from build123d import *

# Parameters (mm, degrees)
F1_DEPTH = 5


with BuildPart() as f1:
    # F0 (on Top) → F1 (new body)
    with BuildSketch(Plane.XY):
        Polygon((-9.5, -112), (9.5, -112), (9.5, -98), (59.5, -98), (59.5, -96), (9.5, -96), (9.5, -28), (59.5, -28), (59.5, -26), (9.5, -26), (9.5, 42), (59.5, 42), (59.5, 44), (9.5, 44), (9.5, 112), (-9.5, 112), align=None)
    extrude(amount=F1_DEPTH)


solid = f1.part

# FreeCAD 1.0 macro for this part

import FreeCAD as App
import Part
import Sketcher
Q = App.Units.Quantity

doc = App.newDocument("Part")
params = doc.addObject("Spreadsheet::Sheet", "Params")
for row, (alias, value) in enumerate([
    ("sketch1_width", "19 mm"),
    ("sketch1_width2", "50 mm"),
    ("sketch1_height", "14 mm"),
    ("sketch1_height2", "2 mm"),
    ("sketch1_height3", "68 mm"),
    ("pad1_length", "5 mm"),
], start=1):
    params.set(f"A{row}", alias)
    params.set(f"B{row}", "=" + value)
    params.setAlias(f"B{row}", alias)

body = doc.addObject("PartDesign::Body", "Body")

# Sketch on XY plane
sketch1 = body.newObject("Sketcher::SketchObject", "Sketch")
sketch1.AttachmentSupport = (doc.getObject("XY_Plane"), [""])
sketch1.MapMode = "FlatFace"
sketch1.addGeometry(Part.LineSegment(App.Vector(-9.5, -112, 0), App.Vector(9.5, -112, 0)), False)
sketch1.addGeometry(Part.LineSegment(App.Vector(9.5, -112, 0), App.Vector(9.5, -98, 0)), False)
sketch1.addGeometry(Part.LineSegment(App.Vector(9.5, -98, 0), App.Vector(59.5, -98, 0)), False)
sketch1.addGeometry(Part.LineSegment(App.Vector(59.5, -98, 0), App.Vector(59.5, -96, 0)), False)
sketch1.addGeometry(Part.LineSegment(App.Vector(59.5, -96, 0), App.Vector(9.5, -96, 0)), False)
sketch1.addGeometry(Part.LineSegment(App.Vector(9.5, -96, 0), App.Vector(9.5, -28, 0)), False)
sketch1.addGeometry(Part.LineSegment(App.Vector(9.5, -28, 0), App.Vector(59.5, -28, 0)), False)
sketch1.addGeometry(Part.LineSegment(App.Vector(59.5, -28, 0), App.Vector(59.5, -26, 0)), False)
sketch1.addGeometry(Part.LineSegment(App.Vector(59.5, -26, 0), App.Vector(9.5, -26, 0)), False)
sketch1.addGeometry(Part.LineSegment(App.Vector(9.5, -26, 0), App.Vector(9.5, 42, 0)), False)
sketch1.addGeometry(Part.LineSegment(App.Vector(9.5, 42, 0), App.Vector(59.5, 42, 0)), False)
sketch1.addGeometry(Part.LineSegment(App.Vector(59.5, 42, 0), App.Vector(59.5, 44, 0)), False)
sketch1.addGeometry(Part.LineSegment(App.Vector(59.5, 44, 0), App.Vector(9.5, 44, 0)), False)
sketch1.addGeometry(Part.LineSegment(App.Vector(9.5, 44, 0), App.Vector(9.5, 112, 0)), False)
sketch1.addGeometry(Part.LineSegment(App.Vector(9.5, 112, 0), App.Vector(-9.5, 112, 0)), False)
sketch1.addGeometry(Part.LineSegment(App.Vector(-9.5, 112, 0), App.Vector(-9.5, -112, 0)), False)
sketch1.addConstraint(Sketcher.Constraint("Coincident", 0, 2, 1, 1))
sketch1.addConstraint(Sketcher.Constraint("Coincident", 1, 2, 2, 1))
sketch1.addConstraint(Sketcher.Constraint("Coincident", 2, 2, 3, 1))
sketch1.addConstraint(Sketcher.Constraint("Coincident", 3, 2, 4, 1))
sketch1.addConstraint(Sketcher.Constraint("Coincident", 4, 2, 5, 1))
sketch1.addConstraint(Sketcher.Constraint("Coincident", 5, 2, 6, 1))
sketch1.addConstraint(Sketcher.Constraint("Coincident", 6, 2, 7, 1))
sketch1.addConstraint(Sketcher.Constraint("Coincident", 7, 2, 8, 1))
sketch1.addConstraint(Sketcher.Constraint("Coincident", 8, 2, 9, 1))
sketch1.addConstraint(Sketcher.Constraint("Coincident", 9, 2, 10, 1))
sketch1.addConstraint(Sketcher.Constraint("Coincident", 10, 2, 11, 1))
sketch1.addConstraint(Sketcher.Constraint("Coincident", 11, 2, 12, 1))
sketch1.addConstraint(Sketcher.Constraint("Coincident", 12, 2, 13, 1))
sketch1.addConstraint(Sketcher.Constraint("Coincident", 13, 2, 14, 1))
sketch1.addConstraint(Sketcher.Constraint("Coincident", 14, 2, 15, 1))
sketch1.addConstraint(Sketcher.Constraint("Coincident", 15, 2, 0, 1))
sketch1.addConstraint(Sketcher.Constraint("Horizontal", 0))
sketch1.addConstraint(Sketcher.Constraint("Vertical", 1))
sketch1.addConstraint(Sketcher.Constraint("Horizontal", 2))
sketch1.addConstraint(Sketcher.Constraint("Vertical", 3))
sketch1.addConstraint(Sketcher.Constraint("Horizontal", 4))
sketch1.addConstraint(Sketcher.Constraint("Vertical", 5))
sketch1.addConstraint(Sketcher.Constraint("Horizontal", 6))
sketch1.addConstraint(Sketcher.Constraint("Vertical", 7))
sketch1.addConstraint(Sketcher.Constraint("Horizontal", 8))
sketch1.addConstraint(Sketcher.Constraint("Vertical", 9))
sketch1.addConstraint(Sketcher.Constraint("Horizontal", 10))
sketch1.addConstraint(Sketcher.Constraint("Vertical", 11))
sketch1.addConstraint(Sketcher.Constraint("Horizontal", 12))
sketch1.addConstraint(Sketcher.Constraint("Vertical", 13))
sketch1.addConstraint(Sketcher.Constraint("Horizontal", 14))
sketch1.addConstraint(Sketcher.Constraint("Vertical", 15))
sketch1.addConstraint(Sketcher.Constraint("Symmetric", 0, 2, 14, 2, -1, 1))
sketch1.addConstraint(Sketcher.Constraint("Vertical", 1, 2, 4, 2))
sketch1.addConstraint(Sketcher.Constraint("Vertical", 3, 2, 6, 2))
sketch1.addConstraint(Sketcher.Constraint("Vertical", 5, 2, 8, 2))
sketch1.addConstraint(Sketcher.Constraint("Vertical", 7, 2, 10, 2))
sketch1.addConstraint(Sketcher.Constraint("Vertical", 9, 2, 12, 2))
sketch1.addConstraint(Sketcher.Constraint("Equal", 3, 7))
sketch1.addConstraint(Sketcher.Constraint("Equal", 5, 9))
sketch1.addConstraint(Sketcher.Constraint("Equal", 7, 11))
sketch1.addConstraint(Sketcher.Constraint("Equal", 9, 13))
sketch1.addConstraint(Sketcher.Constraint("DistanceX", 0, 1, 0, 2, Q("19 mm")))
sketch1.addConstraint(Sketcher.Constraint("DistanceX", 2, 1, 2, 2, Q("50 mm")))
sketch1.addConstraint(Sketcher.Constraint("DistanceY", 1, 1, 1, 2, Q("14 mm")))
sketch1.addConstraint(Sketcher.Constraint("DistanceY", 3, 1, 3, 2, Q("2 mm")))
sketch1.addConstraint(Sketcher.Constraint("DistanceY", 5, 1, 5, 2, Q("68 mm")))
sketch1.setExpression("Constraints[42]", "Params.sketch1_width")
sketch1.setExpression("Constraints[43]", "Params.sketch1_width2")
sketch1.setExpression("Constraints[44]", "Params.sketch1_height")
sketch1.setExpression("Constraints[45]", "Params.sketch1_height2")
sketch1.setExpression("Constraints[46]", "Params.sketch1_height3")
pad1 = body.newObject("PartDesign::Pad", "Pad")
pad1.Profile = sketch1
pad1.setExpression("Length", "Params.pad1_length")

doc.recompute()
